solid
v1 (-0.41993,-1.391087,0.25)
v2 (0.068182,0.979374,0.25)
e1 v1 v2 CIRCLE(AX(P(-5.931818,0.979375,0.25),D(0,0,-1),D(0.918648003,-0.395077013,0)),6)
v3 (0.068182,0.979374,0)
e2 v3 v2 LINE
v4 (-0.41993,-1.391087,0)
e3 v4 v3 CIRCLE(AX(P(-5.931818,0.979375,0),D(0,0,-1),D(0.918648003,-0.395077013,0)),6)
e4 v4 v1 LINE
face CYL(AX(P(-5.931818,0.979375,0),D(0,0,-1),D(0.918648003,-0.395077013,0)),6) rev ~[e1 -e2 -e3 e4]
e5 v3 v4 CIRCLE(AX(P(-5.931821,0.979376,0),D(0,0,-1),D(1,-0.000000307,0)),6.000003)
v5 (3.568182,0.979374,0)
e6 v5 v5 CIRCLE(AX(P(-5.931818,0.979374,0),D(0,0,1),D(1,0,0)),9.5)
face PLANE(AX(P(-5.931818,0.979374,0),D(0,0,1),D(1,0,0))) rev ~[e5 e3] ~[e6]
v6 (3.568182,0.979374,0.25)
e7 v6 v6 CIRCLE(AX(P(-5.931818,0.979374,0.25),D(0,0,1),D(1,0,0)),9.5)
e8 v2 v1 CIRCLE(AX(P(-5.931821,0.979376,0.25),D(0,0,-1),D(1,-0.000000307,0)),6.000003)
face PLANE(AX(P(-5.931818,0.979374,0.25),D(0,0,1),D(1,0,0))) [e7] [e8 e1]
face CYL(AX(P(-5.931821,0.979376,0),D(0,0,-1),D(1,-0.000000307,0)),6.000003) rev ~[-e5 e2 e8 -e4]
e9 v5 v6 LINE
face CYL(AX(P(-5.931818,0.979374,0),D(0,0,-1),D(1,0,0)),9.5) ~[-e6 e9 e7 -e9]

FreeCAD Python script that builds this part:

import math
import FreeCAD as App
import Part
import Sketcher

V = App.Vector
Q = App.Units.Quantity

doc = App.newDocument("Part")
params = doc.addObject("Spreadsheet::Sheet", "Params")
for row, (alias, value) in enumerate([
    ("sketch1_diameter", "19 mm"),
    ("sketch1_radius", "6 mm"),
    ("pad1_length", "0.25 mm"),
], start=1):
    params.set(f"A{row}", alias)
    params.set(f"B{row}", "=" + value)
    params.setAlias(f"B{row}", alias)

body = doc.addObject("PartDesign::Body", "Body")

sketch1 = body.newObject("Sketcher::SketchObject", "Sketch")
sketch1.AttachmentSupport = (doc.getObject("XY_Plane"), [""])
sketch1.MapMode = "FlatFace"
sketch1.addGeometry([
    Part.Circle(V(-5.931818, 0.979374, 0), V(0, 0, 1), 9.5),
    Part.ArcOfCircle(Part.Circle(V(-5.931818, 0.979375, 0), V(0, 0, 1), 6), math.radians(-0.000011), math.radians(336.729223)),
    Part.ArcOfCircle(Part.Circle(V(-5.931821, 0.979376, 0), V(0, 0, 1), 6.000003), math.radians(-23.270771), math.radians(-0.000018)),
], False)
sketch1.addConstraint([
    Sketcher.Constraint("Tangent", 1, 1, 2, 2),
    Sketcher.Constraint("Coincident", 2, 1, 1, 2),
    Sketcher.Constraint("Coincident", 1, 3, 0, 3),
    Sketcher.Constraint("Horizontal", 2, 3, 1, 1),
    Sketcher.Constraint("Diameter", 0, Q("19 mm")),
    Sketcher.Constraint("Radius", 1, Q("6 mm")),
    Sketcher.Constraint("DistanceX", 1, 3, -1, 1, Q("5.931818 mm")),
    Sketcher.Constraint("DistanceX", 2, 1, -1, 1, Q("0.41993 mm")),
    Sketcher.Constraint("DistanceY", -1, 1, 0, 3, Q("0.979374 mm")),
])
sketch1.setExpression("Constraints[4]", "Params.sketch1_diameter")
sketch1.setExpression("Constraints[5]", "Params.sketch1_radius")
pad1 = body.newObject("PartDesign::Pad", "Pad")
pad1.Profile = sketch1
pad1.setExpression("Length", "Params.pad1_length")

doc.recompute()
